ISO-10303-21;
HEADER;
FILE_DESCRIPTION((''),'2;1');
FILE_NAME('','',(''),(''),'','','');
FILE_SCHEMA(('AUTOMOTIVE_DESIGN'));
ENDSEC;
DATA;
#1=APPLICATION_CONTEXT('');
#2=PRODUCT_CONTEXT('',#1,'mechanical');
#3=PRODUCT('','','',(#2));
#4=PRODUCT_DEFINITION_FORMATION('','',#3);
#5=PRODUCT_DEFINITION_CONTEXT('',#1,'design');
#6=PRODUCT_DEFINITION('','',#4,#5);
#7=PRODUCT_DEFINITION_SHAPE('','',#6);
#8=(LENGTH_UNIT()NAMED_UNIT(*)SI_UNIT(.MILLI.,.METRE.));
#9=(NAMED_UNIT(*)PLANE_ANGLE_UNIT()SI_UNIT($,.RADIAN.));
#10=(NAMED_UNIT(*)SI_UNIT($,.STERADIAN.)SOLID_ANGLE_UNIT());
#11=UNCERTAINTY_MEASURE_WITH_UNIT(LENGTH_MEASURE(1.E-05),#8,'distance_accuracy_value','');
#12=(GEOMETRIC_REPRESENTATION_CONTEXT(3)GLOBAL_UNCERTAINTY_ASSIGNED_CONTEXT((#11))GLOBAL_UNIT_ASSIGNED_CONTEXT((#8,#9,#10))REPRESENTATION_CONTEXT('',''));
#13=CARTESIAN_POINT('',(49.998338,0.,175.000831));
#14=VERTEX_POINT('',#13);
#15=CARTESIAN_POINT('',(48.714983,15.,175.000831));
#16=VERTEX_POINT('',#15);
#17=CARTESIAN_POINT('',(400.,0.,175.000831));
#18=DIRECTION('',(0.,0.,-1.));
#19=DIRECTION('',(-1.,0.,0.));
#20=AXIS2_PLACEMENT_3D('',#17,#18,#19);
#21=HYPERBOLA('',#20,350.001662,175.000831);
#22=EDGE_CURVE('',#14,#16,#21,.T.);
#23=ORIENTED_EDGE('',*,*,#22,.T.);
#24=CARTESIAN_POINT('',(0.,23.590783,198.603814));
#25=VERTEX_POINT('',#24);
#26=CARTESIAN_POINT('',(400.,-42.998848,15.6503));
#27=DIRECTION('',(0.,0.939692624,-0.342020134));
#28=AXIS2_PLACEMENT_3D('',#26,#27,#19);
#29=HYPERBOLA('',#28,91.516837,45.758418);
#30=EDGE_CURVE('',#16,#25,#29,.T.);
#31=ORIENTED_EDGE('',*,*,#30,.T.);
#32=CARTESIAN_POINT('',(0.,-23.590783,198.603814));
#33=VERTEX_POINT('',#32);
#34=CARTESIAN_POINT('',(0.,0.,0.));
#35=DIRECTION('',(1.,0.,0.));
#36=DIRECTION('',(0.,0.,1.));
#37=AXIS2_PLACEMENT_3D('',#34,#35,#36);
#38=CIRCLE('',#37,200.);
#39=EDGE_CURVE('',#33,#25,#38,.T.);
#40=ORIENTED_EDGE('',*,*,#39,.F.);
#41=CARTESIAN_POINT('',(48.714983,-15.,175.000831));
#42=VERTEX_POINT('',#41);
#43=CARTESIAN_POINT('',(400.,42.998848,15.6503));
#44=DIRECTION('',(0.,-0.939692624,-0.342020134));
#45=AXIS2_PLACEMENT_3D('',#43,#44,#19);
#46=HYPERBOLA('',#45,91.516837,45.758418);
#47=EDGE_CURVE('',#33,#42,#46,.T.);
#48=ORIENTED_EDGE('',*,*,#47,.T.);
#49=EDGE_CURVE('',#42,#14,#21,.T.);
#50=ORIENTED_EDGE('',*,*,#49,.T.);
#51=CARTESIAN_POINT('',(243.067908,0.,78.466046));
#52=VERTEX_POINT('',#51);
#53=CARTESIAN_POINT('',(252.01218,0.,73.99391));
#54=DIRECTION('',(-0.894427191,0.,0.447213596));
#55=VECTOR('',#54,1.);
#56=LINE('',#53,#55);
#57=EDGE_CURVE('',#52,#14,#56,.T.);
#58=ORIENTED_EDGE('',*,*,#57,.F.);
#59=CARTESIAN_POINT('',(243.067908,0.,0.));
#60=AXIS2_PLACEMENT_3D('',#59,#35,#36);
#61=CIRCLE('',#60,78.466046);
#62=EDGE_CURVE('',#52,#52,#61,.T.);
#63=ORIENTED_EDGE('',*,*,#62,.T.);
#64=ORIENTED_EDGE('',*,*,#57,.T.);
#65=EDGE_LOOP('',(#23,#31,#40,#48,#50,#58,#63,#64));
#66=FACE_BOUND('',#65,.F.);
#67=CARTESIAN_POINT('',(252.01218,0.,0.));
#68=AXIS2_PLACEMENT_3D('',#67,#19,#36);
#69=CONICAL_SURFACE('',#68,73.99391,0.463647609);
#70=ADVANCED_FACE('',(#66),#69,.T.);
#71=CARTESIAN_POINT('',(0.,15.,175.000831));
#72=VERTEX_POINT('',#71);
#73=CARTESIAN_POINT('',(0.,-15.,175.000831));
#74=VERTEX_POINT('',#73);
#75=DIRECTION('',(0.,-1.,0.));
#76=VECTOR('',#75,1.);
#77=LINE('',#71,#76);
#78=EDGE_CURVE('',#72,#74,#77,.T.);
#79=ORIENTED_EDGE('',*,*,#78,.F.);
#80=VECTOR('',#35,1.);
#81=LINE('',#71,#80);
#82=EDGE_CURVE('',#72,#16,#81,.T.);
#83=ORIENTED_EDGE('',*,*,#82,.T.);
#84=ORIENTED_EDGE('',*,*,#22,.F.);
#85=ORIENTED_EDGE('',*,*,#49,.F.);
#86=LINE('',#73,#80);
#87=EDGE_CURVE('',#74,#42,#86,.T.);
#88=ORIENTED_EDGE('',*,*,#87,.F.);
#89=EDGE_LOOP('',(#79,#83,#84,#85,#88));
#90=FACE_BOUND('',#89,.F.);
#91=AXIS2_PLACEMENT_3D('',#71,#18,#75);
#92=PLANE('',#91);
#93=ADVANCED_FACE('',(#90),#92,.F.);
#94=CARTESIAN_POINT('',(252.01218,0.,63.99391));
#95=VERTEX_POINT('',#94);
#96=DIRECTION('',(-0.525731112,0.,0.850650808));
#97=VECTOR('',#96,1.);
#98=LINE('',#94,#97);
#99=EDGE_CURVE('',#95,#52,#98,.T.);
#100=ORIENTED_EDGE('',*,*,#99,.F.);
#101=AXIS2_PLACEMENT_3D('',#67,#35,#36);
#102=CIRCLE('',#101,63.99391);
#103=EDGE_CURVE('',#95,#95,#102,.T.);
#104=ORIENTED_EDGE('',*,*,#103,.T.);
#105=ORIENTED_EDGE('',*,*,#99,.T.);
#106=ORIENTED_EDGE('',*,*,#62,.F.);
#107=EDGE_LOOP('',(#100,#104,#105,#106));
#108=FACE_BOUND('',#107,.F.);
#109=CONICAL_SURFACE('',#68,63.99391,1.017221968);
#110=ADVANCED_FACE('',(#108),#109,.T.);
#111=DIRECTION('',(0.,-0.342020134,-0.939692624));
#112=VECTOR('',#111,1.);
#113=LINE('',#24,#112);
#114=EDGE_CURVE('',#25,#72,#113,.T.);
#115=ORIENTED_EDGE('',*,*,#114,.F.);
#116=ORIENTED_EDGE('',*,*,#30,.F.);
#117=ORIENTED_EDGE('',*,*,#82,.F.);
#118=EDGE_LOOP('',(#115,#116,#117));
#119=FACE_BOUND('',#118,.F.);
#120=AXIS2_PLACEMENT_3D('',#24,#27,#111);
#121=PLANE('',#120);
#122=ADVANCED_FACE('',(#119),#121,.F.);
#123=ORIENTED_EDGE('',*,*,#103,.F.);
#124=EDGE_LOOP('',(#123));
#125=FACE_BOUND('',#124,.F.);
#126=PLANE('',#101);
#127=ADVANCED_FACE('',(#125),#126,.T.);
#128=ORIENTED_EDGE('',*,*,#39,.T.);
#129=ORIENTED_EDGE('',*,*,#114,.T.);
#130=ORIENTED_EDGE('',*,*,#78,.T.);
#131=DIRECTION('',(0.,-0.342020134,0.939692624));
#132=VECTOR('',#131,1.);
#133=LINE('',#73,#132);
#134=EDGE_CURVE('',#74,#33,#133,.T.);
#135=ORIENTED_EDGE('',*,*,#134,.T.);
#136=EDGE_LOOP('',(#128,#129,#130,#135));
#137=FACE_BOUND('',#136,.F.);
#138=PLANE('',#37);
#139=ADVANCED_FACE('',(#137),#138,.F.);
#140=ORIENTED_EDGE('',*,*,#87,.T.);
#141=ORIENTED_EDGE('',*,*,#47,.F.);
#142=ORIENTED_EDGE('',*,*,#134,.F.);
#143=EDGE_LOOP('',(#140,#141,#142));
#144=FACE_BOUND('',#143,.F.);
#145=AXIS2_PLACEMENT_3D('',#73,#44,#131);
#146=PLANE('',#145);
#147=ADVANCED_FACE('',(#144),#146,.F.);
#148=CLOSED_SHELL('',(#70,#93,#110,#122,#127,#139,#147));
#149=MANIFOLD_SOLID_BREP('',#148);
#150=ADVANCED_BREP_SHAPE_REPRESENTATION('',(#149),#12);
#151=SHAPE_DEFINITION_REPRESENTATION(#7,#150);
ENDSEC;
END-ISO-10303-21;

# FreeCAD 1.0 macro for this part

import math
import FreeCAD as App
import Part
import Sketcher
from FreeCAD import Vector
Q = App.Units.Quantity


def edges_at(feature, points):
    """Names of the edges that pass closest to the given points."""
    edges = feature.Shape.Edges
    near = lambda p: min(range(len(edges)), key=lambda i: edges[i].distToShape(Part.Vertex(*p))[0])
    return sorted({f"Edge{near(p) + 1}" for p in points})

doc = App.newDocument("Part")
body = doc.addObject("PartDesign::Body", "Body")

# Sketch on XZ plane
sketch1 = body.newObject("Sketcher::SketchObject", "Sketch")
sketch1.AttachmentSupport = (doc.getObject("XZ_Plane"), [""])
sketch1.MapMode = "FlatFace"
sketch1.addGeometry([
    Part.LineSegment(Vector(0, 200, 0), Vector(0, 0, 0)),
    Part.LineSegment(Vector(0, 0, 0), Vector(252, 0, 0)),
    Part.LineSegment(Vector(252, 0, 0), Vector(252, 74, 0)),
    Part.LineSegment(Vector(252, 74, 0), Vector(0, 200, 0)),
], False)
sketch1.addConstraint([
    Sketcher.Constraint("Coincident", 0, 2, 1, 1),
    Sketcher.Constraint("Coincident", 1, 2, 2, 1),
    Sketcher.Constraint("Coincident", 2, 2, 3, 1),
    Sketcher.Constraint("Coincident", 3, 2, 0, 1),
    Sketcher.Constraint("Vertical", 0),
    Sketcher.Constraint("Horizontal", 1),
    Sketcher.Constraint("Vertical", 2),
    Sketcher.Constraint("Coincident", 0, 2, -1, 1),
    Sketcher.Constraint("DistanceY", 0, 2, 0, 1, 200.0),
    Sketcher.Constraint("DistanceX", 1, 1, 1, 2, 252.01218),
    Sketcher.Constraint("DistanceY", 2, 1, 2, 2, 73.99391),
])
revolution = body.newObject("PartDesign::Revolution", "Revolution")
revolution.Profile = sketch1
revolution.ReferenceAxis = (sketch1, ["H_Axis"])
revolution.Angle = 360
doc.recompute()

chamfer = body.newObject("PartDesign::Chamfer", "Chamfer")
chamfer.Base = (revolution, edges_at(revolution, [(252.012, 0, -73.994)]))
chamfer.Size = 10

# Sketch on YZ plane
sketch2 = body.newObject("Sketcher::SketchObject", "Sketch001")
sketch2.AttachmentSupport = (doc.getObject("YZ_Plane"), [""])
sketch2.MapMode = "FlatFace"
sketch2.addGeometry([
    Part.LineSegment(Vector(15, 175, 0), Vector(-15, 175, 0)),
    Part.LineSegment(Vector(-15, 175, 0), Vector(-24, 199, 0)),
    Part.ArcOfCircle(Part.Circle(Vector(0, 0, 0), Vector(0, 0, 1), 200), math.radians(83.23), math.radians(96.77)),
    Part.LineSegment(Vector(24, 199, 0), Vector(15, 175, 0)),
], False)
sketch2.addConstraint([
    Sketcher.Constraint("Coincident", 0, 2, 1, 1),
    Sketcher.Constraint("Coincident", 1, 2, 2, 2),
    Sketcher.Constraint("Coincident", 2, 1, 3, 1),
    Sketcher.Constraint("Coincident", 3, 2, 0, 1),
    Sketcher.Constraint("Horizontal", 0),
    Sketcher.Constraint("Coincident", 2, 3, -1, 1),
    Sketcher.Constraint("Horizontal", 1, 2, 2, 1),
    Sketcher.Constraint("Equal", 1, 3),
    Sketcher.Constraint("DistanceX", 0, 2, 0, 1, 30.0),
    Sketcher.Constraint("Angle", 1, Q("109.999999 deg")),
    Sketcher.Constraint("Radius", 2, 199.999992),
    Sketcher.Constraint("Distance", 1, 25.11777),
])
pocket1 = body.newObject("PartDesign::Pocket", "Pocket")
pocket1.Profile = sketch2
pocket1.Length = 1000
pocket1.Reversed = True

doc.recompute()
